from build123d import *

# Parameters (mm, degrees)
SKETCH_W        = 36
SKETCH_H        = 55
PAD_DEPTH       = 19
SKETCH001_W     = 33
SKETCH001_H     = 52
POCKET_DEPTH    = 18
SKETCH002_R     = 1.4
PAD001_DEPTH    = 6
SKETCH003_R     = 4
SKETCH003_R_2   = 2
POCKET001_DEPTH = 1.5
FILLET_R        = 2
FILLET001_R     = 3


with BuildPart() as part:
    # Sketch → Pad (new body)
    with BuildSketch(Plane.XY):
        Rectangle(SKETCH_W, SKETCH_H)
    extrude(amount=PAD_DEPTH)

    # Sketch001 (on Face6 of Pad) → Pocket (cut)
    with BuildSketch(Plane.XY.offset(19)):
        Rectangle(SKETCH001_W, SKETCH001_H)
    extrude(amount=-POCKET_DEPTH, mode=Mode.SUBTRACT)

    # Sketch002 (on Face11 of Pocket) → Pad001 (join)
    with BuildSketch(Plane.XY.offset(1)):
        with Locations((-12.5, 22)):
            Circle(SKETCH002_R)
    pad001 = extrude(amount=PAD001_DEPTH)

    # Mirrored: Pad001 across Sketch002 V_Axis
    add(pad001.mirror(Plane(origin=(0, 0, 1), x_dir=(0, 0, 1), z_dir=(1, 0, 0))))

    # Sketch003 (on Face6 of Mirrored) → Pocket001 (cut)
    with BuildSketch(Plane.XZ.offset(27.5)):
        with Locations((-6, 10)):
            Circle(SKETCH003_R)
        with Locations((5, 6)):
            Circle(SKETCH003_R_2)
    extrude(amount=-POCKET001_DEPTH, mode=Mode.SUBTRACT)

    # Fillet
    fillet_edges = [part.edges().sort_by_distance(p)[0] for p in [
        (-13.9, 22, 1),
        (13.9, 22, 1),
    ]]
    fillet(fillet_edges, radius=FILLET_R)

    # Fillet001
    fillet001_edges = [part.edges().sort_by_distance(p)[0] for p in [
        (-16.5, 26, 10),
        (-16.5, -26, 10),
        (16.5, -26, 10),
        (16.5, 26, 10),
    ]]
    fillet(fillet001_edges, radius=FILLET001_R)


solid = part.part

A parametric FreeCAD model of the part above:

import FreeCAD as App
import Part
import Sketcher
Q = App.Units.Quantity


def edges_at(feature, points):
    """Names of the edges that pass closest to the given points."""
    edges = feature.Shape.Edges
    near = lambda p: min(range(len(edges)), key=lambda i: edges[i].distToShape(Part.Vertex(*p))[0])
    return sorted({f"Edge{near(p) + 1}" for p in points})

doc = App.newDocument("Part")
body = doc.addObject("PartDesign::Body", "Body")

# Sketch on XY plane
sketch1 = body.newObject("Sketcher::SketchObject", "Sketch")
sketch1.AttachmentSupport = (doc.getObject("XY_Plane"), [""])
sketch1.MapMode = "FlatFace"
sketch1.addGeometry([
    Part.LineSegment(App.Vector(-18, 27.5, 0), App.Vector(-18, -27.5, 0)),
    Part.LineSegment(App.Vector(-18, -27.5, 0), App.Vector(18, -27.5, 0)),
    Part.LineSegment(App.Vector(18, -27.5, 0), App.Vector(18, 27.5, 0)),
    Part.LineSegment(App.Vector(18, 27.5, 0), App.Vector(-18, 27.5, 0)),
], False)
sketch1.addConstraint([
    Sketcher.Constraint("Coincident", 0, 2, 1, 1),
    Sketcher.Constraint("Coincident", 1, 2, 2, 1),
    Sketcher.Constraint("Coincident", 2, 2, 3, 1),
    Sketcher.Constraint("Coincident", 3, 2, 0, 1),
    Sketcher.Constraint("Vertical", 0),
    Sketcher.Constraint("Horizontal", 1),
    Sketcher.Constraint("Vertical", 2),
    Sketcher.Constraint("Horizontal", 3),
    Sketcher.Constraint("Symmetric", 0, 2, 2, 2, -1, 1),
    Sketcher.Constraint("DistanceX", 1, 1, 1, 2, Q("36 mm")),
    Sketcher.Constraint("DistanceY", 0, 2, 0, 1, Q("55 mm")),
])
pad1 = body.newObject("PartDesign::Pad", "Pad")
pad1.Profile = sketch1
pad1.Length = 19

# Sketch on XY plane
sketch2 = body.newObject("Sketcher::SketchObject", "Sketch001")
sketch2.AttachmentSupport = (doc.getObject("XY_Plane"), [""])
sketch2.MapMode = "FlatFace"
sketch2.AttachmentOffset = App.Placement(App.Vector(0, 0, 19), App.Rotation())
sketch2.addGeometry([
    Part.LineSegment(App.Vector(-16.5, 26, 0), App.Vector(-16.5, -26, 0)),
    Part.LineSegment(App.Vector(-16.5, -26, 0), App.Vector(16.5, -26, 0)),
    Part.LineSegment(App.Vector(16.5, -26, 0), App.Vector(16.5, 26, 0)),
    Part.LineSegment(App.Vector(16.5, 26, 0), App.Vector(-16.5, 26, 0)),
], False)
sketch2.addConstraint([
    Sketcher.Constraint("Coincident", 0, 2, 1, 1),
    Sketcher.Constraint("Coincident", 1, 2, 2, 1),
    Sketcher.Constraint("Coincident", 2, 2, 3, 1),
    Sketcher.Constraint("Coincident", 3, 2, 0, 1),
    Sketcher.Constraint("Vertical", 0),
    Sketcher.Constraint("Horizontal", 1),
    Sketcher.Constraint("Vertical", 2),
    Sketcher.Constraint("Horizontal", 3),
    Sketcher.Constraint("Symmetric", 0, 2, 2, 2, -1, 1),
    Sketcher.Constraint("DistanceX", 1, 1, 1, 2, Q("33 mm")),
    Sketcher.Constraint("DistanceY", 0, 2, 0, 1, Q("52 mm")),
])
pocket1 = body.newObject("PartDesign::Pocket", "Pocket")
pocket1.Profile = sketch2
pocket1.Length = 18

# Sketch on XY plane
sketch3 = body.newObject("Sketcher::SketchObject", "Sketch002")
sketch3.AttachmentSupport = (doc.getObject("XY_Plane"), [""])
sketch3.MapMode = "FlatFace"
sketch3.AttachmentOffset = App.Placement(App.Vector(0, 0, 1), App.Rotation())
sketch3.addGeometry(Part.Circle(App.Vector(-12.5, 22, 0), App.Vector(0, 0, 1), 1.4), False)
sketch3.addConstraint([
    Sketcher.Constraint("Diameter", 0, Q("2.8 mm")),
    Sketcher.Constraint("DistanceY", -1, 1, 0, 3, Q("22 mm")),
    Sketcher.Constraint("DistanceX", 0, 3, -1, 1, Q("12.5 mm")),
])
pad2 = body.newObject("PartDesign::Pad", "Pad001")
pad2.Profile = sketch3
pad2.Length = 6
doc.recompute()

mirrored = body.newObject("PartDesign::Mirrored", "Mirrored")
mirrored.Originals = [pad2]
mirrored.MirrorPlane = (doc.getObject("YZ_Plane"), [""])
body.Tip = mirrored

# Sketch on XZ plane
sketch4 = body.newObject("Sketcher::SketchObject", "Sketch003")
sketch4.AttachmentSupport = (doc.getObject("XZ_Plane"), [""])
sketch4.MapMode = "FlatFace"
sketch4.AttachmentOffset = App.Placement(App.Vector(0, 0, 27.5), App.Rotation())
sketch4.addGeometry([
    Part.Circle(App.Vector(-6, 10, 0), App.Vector(0, 0, 1), 4),
    Part.Circle(App.Vector(5, 6, 0), App.Vector(0, 0, 1), 2),
], False)
sketch4.addConstraint([
    Sketcher.Constraint("Diameter", 0, Q("8 mm")),
    Sketcher.Constraint("Diameter", 1, Q("4 mm")),
    Sketcher.Constraint("DistanceX", 0, 3, -1, 1, Q("6 mm")),
    Sketcher.Constraint("DistanceY", -1, 1, 0, 3, Q("10 mm")),
    Sketcher.Constraint("DistanceX", -1, 1, 1, 3, Q("5 mm")),
    Sketcher.Constraint("DistanceY", -1, 1, 1, 3, Q("6 mm")),
])
pocket2 = body.newObject("PartDesign::Pocket", "Pocket001")
pocket2.Profile = sketch4
pocket2.Length = 1.5
doc.recompute()

fillet = body.newObject("PartDesign::Fillet", "Fillet")
fillet.Base = (pocket2, edges_at(pocket2, [(-13.9, 22, 1), (13.9, 22, 1)]))
fillet.Radius = 2
doc.recompute()

fillet2 = body.newObject("PartDesign::Fillet", "Fillet001")
fillet2.Base = (fillet, edges_at(fillet, [
    (-16.5, 26, 10),
    (-16.5, -26, 10),
    (16.5, -26, 10),
    (16.5, 26, 10),
]))
fillet2.Radius = 3

doc.recompute()
